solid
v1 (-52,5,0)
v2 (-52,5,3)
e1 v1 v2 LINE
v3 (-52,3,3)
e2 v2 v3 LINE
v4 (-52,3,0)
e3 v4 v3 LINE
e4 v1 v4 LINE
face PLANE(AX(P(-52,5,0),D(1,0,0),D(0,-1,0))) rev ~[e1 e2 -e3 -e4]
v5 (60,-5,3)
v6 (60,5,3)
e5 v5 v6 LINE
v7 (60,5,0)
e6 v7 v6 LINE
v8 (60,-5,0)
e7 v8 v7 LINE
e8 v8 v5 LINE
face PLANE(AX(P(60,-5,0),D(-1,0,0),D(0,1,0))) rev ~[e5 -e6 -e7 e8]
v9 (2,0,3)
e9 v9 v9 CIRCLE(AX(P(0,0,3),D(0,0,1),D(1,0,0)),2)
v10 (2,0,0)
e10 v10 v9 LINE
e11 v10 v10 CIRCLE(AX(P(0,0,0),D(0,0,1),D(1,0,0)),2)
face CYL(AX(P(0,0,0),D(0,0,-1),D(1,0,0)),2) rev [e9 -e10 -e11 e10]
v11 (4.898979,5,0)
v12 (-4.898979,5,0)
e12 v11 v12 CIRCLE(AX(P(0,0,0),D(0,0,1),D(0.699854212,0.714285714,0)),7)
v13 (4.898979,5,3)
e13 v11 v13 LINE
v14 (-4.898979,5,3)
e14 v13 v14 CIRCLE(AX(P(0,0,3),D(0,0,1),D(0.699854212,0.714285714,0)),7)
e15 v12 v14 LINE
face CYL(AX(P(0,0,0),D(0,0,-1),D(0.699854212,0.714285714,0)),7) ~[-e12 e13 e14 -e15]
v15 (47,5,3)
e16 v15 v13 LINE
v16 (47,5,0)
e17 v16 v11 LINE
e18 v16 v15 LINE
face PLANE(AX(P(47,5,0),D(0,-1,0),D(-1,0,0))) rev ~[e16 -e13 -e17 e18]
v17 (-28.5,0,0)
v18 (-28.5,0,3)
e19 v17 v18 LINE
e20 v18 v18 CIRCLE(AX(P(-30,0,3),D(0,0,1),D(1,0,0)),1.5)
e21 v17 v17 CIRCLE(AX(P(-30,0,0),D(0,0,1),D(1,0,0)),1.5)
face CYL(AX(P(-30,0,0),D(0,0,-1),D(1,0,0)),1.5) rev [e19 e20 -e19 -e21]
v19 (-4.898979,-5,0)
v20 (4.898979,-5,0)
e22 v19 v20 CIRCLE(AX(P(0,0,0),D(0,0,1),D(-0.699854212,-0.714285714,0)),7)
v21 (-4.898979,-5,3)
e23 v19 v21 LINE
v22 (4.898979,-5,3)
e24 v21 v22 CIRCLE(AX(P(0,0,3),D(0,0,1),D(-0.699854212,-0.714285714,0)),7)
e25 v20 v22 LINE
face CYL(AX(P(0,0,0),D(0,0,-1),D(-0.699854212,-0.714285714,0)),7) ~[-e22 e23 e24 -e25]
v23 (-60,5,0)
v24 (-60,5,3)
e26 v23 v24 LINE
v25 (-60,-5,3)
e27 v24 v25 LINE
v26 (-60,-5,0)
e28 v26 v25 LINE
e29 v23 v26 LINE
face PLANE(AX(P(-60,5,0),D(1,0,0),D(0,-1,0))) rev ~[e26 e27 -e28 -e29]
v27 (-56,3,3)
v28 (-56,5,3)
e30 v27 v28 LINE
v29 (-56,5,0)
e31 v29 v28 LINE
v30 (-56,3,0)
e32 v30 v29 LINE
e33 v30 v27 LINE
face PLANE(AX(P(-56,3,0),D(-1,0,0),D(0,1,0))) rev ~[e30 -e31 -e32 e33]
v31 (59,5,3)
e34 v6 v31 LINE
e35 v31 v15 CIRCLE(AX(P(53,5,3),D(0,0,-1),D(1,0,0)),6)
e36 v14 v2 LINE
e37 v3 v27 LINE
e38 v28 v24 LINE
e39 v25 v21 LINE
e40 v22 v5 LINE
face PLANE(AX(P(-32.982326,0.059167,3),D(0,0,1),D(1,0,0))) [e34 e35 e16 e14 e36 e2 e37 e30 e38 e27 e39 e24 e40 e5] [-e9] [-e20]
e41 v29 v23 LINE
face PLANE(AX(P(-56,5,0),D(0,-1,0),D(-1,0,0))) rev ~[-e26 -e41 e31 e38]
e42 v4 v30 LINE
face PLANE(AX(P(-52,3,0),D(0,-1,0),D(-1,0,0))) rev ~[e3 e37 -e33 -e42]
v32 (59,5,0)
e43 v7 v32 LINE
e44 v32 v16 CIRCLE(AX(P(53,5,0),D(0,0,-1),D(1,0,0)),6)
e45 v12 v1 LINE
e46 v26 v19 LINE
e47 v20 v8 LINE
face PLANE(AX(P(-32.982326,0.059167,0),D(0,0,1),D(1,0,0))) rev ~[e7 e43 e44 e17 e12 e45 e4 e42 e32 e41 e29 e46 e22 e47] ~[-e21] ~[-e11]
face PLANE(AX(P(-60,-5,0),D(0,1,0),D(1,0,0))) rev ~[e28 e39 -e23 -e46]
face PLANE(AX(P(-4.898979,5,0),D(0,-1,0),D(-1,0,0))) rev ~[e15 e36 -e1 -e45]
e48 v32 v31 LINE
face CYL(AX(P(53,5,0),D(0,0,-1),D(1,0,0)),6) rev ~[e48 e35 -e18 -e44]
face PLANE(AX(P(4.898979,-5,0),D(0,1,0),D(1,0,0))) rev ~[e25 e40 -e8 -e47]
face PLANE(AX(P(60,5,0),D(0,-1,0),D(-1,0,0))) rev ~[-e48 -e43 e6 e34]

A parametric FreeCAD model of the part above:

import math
import FreeCAD as App
import Part
import Sketcher
Q = App.Units.Quantity

doc = App.newDocument("Part")
body = doc.addObject("PartDesign::Body", "Body")

sketch1 = body.newObject("Sketcher::SketchObject", "Sketch")
sketch1.AttachmentSupport = (doc.getObject("XY_Plane"), [""])
sketch1.MapMode = "FlatFace"
sketch1.addGeometry(Part.LineSegment(App.Vector(-60, -5, 0), App.Vector(-4.898979, -5, 0)), False)
sketch1.addGeometry(Part.ArcOfCircle(Part.Circle(App.Vector(0, 0, 0), App.Vector(0, 0, 1), 7), math.radians(-134.415309), math.radians(-45.584691)), False)
sketch1.addGeometry(Part.LineSegment(App.Vector(4.898979, -5, 0), App.Vector(60, -5, 0)), False)
sketch1.addGeometry(Part.LineSegment(App.Vector(60, -5, 0), App.Vector(60, 5, 0)), False)
sketch1.addGeometry(Part.LineSegment(App.Vector(60, 5, 0), App.Vector(59, 5, 0)), False)
sketch1.addGeometry(Part.ArcOfCircle(Part.Circle(App.Vector(53, 5, 0), App.Vector(0, 0, 1), 6), math.radians(180), math.radians(360)), False)
sketch1.addGeometry(Part.LineSegment(App.Vector(47, 5, 0), App.Vector(4.898979, 5, 0)), False)
sketch1.addGeometry(Part.ArcOfCircle(Part.Circle(App.Vector(0, 0, 0), App.Vector(0, 0, 1), 7), math.radians(45.584691), math.radians(134.415309)), False)
sketch1.addGeometry(Part.LineSegment(App.Vector(-4.898979, 5, 0), App.Vector(-52, 5, 0)), False)
sketch1.addGeometry(Part.LineSegment(App.Vector(-52, 5, 0), App.Vector(-52, 3, 0)), False)
sketch1.addGeometry(Part.LineSegment(App.Vector(-52, 3, 0), App.Vector(-56, 3, 0)), False)
sketch1.addGeometry(Part.LineSegment(App.Vector(-56, 3, 0), App.Vector(-56, 5, 0)), False)
sketch1.addGeometry(Part.LineSegment(App.Vector(-56, 5, 0), App.Vector(-60, 5, 0)), False)
sketch1.addGeometry(Part.LineSegment(App.Vector(-60, 5, 0), App.Vector(-60, -5, 0)), False)
sketch1.addGeometry(Part.Circle(App.Vector(-30, 0, 0), App.Vector(0, 0, 1), 1.5), False)
sketch1.addGeometry(Part.Circle(App.Vector(0, 0, 0), App.Vector(0, 0, 1), 2), False)
sketch1.addConstraint(Sketcher.Constraint("Coincident", 0, 2, 1, 1))
sketch1.addConstraint(Sketcher.Constraint("Coincident", 1, 2, 2, 1))
sketch1.addConstraint(Sketcher.Constraint("Coincident", 2, 2, 3, 1))
sketch1.addConstraint(Sketcher.Constraint("Coincident", 3, 2, 4, 1))
sketch1.addConstraint(Sketcher.Constraint("Coincident", 4, 2, 5, 2))
sketch1.addConstraint(Sketcher.Constraint("Coincident", 5, 1, 6, 1))
sketch1.addConstraint(Sketcher.Constraint("Coincident", 6, 2, 7, 1))
sketch1.addConstraint(Sketcher.Constraint("Coincident", 7, 2, 8, 1))
sketch1.addConstraint(Sketcher.Constraint("Coincident", 8, 2, 9, 1))
sketch1.addConstraint(Sketcher.Constraint("Coincident", 9, 2, 10, 1))
sketch1.addConstraint(Sketcher.Constraint("Coincident", 10, 2, 11, 1))
sketch1.addConstraint(Sketcher.Constraint("Coincident", 11, 2, 12, 1))
sketch1.addConstraint(Sketcher.Constraint("Coincident", 12, 2, 13, 1))
sketch1.addConstraint(Sketcher.Constraint("Coincident", 13, 2, 0, 1))
sketch1.addConstraint(Sketcher.Constraint("Horizontal", 0))
sketch1.addConstraint(Sketcher.Constraint("Horizontal", 2))
sketch1.addConstraint(Sketcher.Constraint("Vertical", 3))
sketch1.addConstraint(Sketcher.Constraint("Horizontal", 4))
sketch1.addConstraint(Sketcher.Constraint("Horizontal", 6))
sketch1.addConstraint(Sketcher.Constraint("Horizontal", 8))
sketch1.addConstraint(Sketcher.Constraint("Vertical", 9))
sketch1.addConstraint(Sketcher.Constraint("Horizontal", 10))
sketch1.addConstraint(Sketcher.Constraint("Vertical", 11))
sketch1.addConstraint(Sketcher.Constraint("Horizontal", 12))
sketch1.addConstraint(Sketcher.Constraint("Vertical", 13))
sketch1.addConstraint(Sketcher.Constraint("Coincident", 1, 3, -1, 1))
sketch1.addConstraint(Sketcher.Constraint("Coincident", 7, 3, -1, 1))
sketch1.addConstraint(Sketcher.Constraint("Coincident", 15, 3, -1, 1))
sketch1.addConstraint(Sketcher.Constraint("Equal", 1, 7))
sketch1.addConstraint(Sketcher.Constraint("Symmetric", 2, 2, 12, 2, -1, 1))
sketch1.addConstraint(Sketcher.Constraint("PointOnObject", 14, 3, -1))
sketch1.addConstraint(Sketcher.Constraint("Horizontal", 0, 2, 1, 2))
sketch1.addConstraint(Sketcher.Constraint("Horizontal", 5, 3, 3, 2))
sketch1.addConstraint(Sketcher.Constraint("Horizontal", 4, 2, 5, 1))
sketch1.addConstraint(Sketcher.Constraint("Horizontal", 6, 2, 7, 2))
sketch1.addConstraint(Sketcher.Constraint("Horizontal", 8, 2, 11, 2))
sketch1.addConstraint(Sketcher.Constraint("Equal", 10, 12))
sketch1.addConstraint(Sketcher.Constraint("Diameter", 14, Q("3 mm")))
sketch1.addConstraint(Sketcher.Constraint("Diameter", 15, Q("4 mm")))
sketch1.addConstraint(Sketcher.Constraint("Radius", 1, Q("7 mm")))
sketch1.addConstraint(Sketcher.Constraint("Radius", 5, Q("6 mm")))
sketch1.addConstraint(Sketcher.Constraint("DistanceX", 4, 2, 4, 1, Q("1 mm")))
sketch1.addConstraint(Sketcher.Constraint("DistanceX", 10, 2, 10, 1, Q("4 mm")))
sketch1.addConstraint(Sketcher.Constraint("DistanceY", 3, 1, 3, 2, Q("10 mm")))
sketch1.addConstraint(Sketcher.Constraint("DistanceY", 9, 2, 9, 1, Q("2 mm")))
sketch1.addConstraint(Sketcher.Constraint("DistanceX", -1, 1, 5, 3, Q("53 mm")))
sketch1.addConstraint(Sketcher.Constraint("DistanceX", 14, 3, -1, 1, Q("30 mm")))
pad1 = body.newObject("PartDesign::Pad", "Pad")
pad1.Profile = sketch1
pad1.Length = 3

doc.recompute()
